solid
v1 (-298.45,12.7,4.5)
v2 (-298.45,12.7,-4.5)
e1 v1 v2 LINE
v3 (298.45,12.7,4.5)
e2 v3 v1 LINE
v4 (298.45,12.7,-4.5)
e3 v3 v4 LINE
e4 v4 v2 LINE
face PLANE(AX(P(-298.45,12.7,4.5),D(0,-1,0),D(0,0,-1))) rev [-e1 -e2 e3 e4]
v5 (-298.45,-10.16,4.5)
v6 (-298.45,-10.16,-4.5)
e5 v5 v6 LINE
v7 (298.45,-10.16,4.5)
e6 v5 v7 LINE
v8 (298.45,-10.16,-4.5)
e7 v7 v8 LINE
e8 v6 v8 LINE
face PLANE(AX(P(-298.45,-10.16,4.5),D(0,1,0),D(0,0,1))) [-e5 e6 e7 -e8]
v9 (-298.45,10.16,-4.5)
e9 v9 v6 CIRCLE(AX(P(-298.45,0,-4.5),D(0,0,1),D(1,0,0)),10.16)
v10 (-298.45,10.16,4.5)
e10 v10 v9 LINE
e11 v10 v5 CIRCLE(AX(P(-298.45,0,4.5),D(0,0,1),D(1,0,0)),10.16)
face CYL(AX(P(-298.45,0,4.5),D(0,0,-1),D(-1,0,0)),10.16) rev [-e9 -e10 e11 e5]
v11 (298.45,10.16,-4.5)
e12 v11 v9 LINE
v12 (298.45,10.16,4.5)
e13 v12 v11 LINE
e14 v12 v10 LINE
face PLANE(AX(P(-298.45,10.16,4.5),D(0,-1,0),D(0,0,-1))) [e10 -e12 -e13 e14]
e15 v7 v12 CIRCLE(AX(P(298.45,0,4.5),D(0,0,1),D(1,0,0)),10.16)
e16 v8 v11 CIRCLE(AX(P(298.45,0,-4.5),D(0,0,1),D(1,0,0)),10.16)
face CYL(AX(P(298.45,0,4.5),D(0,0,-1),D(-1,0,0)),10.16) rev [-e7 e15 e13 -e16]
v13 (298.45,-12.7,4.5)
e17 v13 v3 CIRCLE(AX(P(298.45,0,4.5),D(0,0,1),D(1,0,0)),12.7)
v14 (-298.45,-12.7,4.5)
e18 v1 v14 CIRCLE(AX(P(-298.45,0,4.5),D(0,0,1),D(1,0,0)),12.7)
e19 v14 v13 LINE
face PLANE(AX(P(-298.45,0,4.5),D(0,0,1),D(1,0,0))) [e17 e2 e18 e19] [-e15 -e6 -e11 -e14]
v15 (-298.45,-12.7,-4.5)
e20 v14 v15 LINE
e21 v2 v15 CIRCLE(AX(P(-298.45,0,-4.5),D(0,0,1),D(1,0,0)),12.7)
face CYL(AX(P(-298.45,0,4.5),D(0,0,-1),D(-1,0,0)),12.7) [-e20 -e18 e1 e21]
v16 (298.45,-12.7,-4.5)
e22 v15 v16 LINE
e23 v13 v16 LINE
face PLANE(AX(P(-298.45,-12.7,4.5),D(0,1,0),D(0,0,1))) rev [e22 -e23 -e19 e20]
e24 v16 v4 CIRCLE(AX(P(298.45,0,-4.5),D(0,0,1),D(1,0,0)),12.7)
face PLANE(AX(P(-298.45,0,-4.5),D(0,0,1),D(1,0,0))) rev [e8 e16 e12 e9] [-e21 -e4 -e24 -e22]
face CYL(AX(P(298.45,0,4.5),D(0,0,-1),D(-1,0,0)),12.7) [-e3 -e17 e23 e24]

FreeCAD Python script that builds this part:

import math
import FreeCAD as App
import Part
import Sketcher
Q = App.Units.Quantity

doc = App.newDocument("Part")
body = doc.addObject("PartDesign::Body", "Body")

# Sketch on XY plane
sketch1 = body.newObject("Sketcher::SketchObject", "Sketch")
sketch1.AttachmentSupport = (doc.getObject("XY_Plane"), [""])
sketch1.MapMode = "FlatFace"
sketch1.addGeometry([
    Part.LineSegment(App.Vector(-298, -13, 0), App.Vector(298, -13, 0)),  # 0
    Part.ArcOfCircle(Part.Circle(App.Vector(298, 0, 0), App.Vector(0, 0, 1), 13), math.radians(-90), math.radians(90)),  # 1
    Part.LineSegment(App.Vector(298, 13, 0), App.Vector(-298, 13, 0)),  # 2
    Part.ArcOfCircle(Part.Circle(App.Vector(-298, 0, 0), App.Vector(0, 0, 1), 13), math.radians(90), math.radians(270)),  # 3
    Part.LineSegment(App.Vector(298, -10, 0), App.Vector(-298, -10, 0)),  # 4
    Part.ArcOfCircle(Part.Circle(App.Vector(-298, 0, 0), App.Vector(0, 0, 1), 10), math.radians(90), math.radians(270)),  # 5
    Part.LineSegment(App.Vector(-298, 10, 0), App.Vector(298, 10, 0)),  # 6
    Part.ArcOfCircle(Part.Circle(App.Vector(298, 0, 0), App.Vector(0, 0, 1), 10), math.radians(-90), math.radians(90)),  # 7
], False)
sketch1.addConstraint([
    Sketcher.Constraint("Tangent", 0, 2, 1, 1),
    Sketcher.Constraint("Tangent", 1, 2, 2, 1),
    Sketcher.Constraint("Tangent", 2, 2, 3, 1),
    Sketcher.Constraint("Tangent", 3, 2, 0, 1),
    Sketcher.Constraint("Tangent", 4, 2, 5, 2),
    Sketcher.Constraint("Tangent", 5, 1, 6, 1),
    Sketcher.Constraint("Tangent", 6, 2, 7, 2),
    Sketcher.Constraint("Tangent", 7, 1, 4, 1),
    Sketcher.Constraint("Horizontal", 0),
    Sketcher.Constraint("Horizontal", 2),
    Sketcher.Constraint("Horizontal", 4),
    Sketcher.Constraint("Horizontal", 6),
    Sketcher.Constraint("Coincident", 5, 3, 3, 3),
    Sketcher.Constraint("Symmetric", 1, 3, 3, 3, -1, 1),
    Sketcher.Constraint("Vertical", 7, 3, 0, 2),
    Sketcher.Constraint("Radius", 1, Q("0.5 in")),
    Sketcher.Constraint("Radius", 5, Q("0.4 in")),
    Sketcher.Constraint("DistanceX", 0, 1, 0, 2, Q("23.5 in")),
])
pad1 = body.newObject("PartDesign::Pad", "Pad")
pad1.Profile = sketch1
pad1.Length = 9
pad1.Midplane = True

doc.recompute()
